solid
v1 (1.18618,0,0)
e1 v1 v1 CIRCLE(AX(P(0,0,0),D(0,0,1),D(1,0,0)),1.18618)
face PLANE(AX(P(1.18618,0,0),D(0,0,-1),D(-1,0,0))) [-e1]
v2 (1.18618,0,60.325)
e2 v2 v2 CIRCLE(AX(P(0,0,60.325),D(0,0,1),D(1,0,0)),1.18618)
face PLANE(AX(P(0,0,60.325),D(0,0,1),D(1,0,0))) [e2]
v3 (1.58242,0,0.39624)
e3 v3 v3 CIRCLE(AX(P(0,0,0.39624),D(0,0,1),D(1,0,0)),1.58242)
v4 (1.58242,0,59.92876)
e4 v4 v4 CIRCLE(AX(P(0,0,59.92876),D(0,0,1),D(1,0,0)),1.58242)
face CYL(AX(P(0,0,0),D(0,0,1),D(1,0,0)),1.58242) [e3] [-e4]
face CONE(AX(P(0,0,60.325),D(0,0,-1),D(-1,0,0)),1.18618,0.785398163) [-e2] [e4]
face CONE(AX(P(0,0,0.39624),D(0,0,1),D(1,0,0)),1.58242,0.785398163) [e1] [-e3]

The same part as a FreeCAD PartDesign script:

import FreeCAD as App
import Part
import Sketcher
Q = App.Units.Quantity

doc = App.newDocument("Part")
body = doc.addObject("PartDesign::Body", "Body")

sketch1 = doc.addObject("Sketcher::SketchObject", "Sketch")
body.addObject(sketch1)
sketch1.AttachmentSupport = (doc.XZ_Plane, [""])
sketch1.MapMode = "FlatFace"
sketch1.addGeometry(Part.LineSegment(App.Vector(1.2, 0, 0), App.Vector(0, 0, 0)), False)
sketch1.addGeometry(Part.LineSegment(App.Vector(0, 0, 0), App.Vector(0, 60.3, 0)), False)
sketch1.addGeometry(Part.LineSegment(App.Vector(0, 60.3, 0), App.Vector(1.2, 60.3, 0)), False)
sketch1.addGeometry(Part.LineSegment(App.Vector(1.2, 60.3, 0), App.Vector(1.6, 59.9, 0)), False)
sketch1.addGeometry(Part.LineSegment(App.Vector(1.6, 59.9, 0), App.Vector(1.6, 0.4, 0)), False)
sketch1.addGeometry(Part.LineSegment(App.Vector(1.6, 0.4, 0), App.Vector(1.2, 0, 0)), False)
sketch1.addConstraint(Sketcher.Constraint("Coincident", 0, 2, 1, 1))
sketch1.addConstraint(Sketcher.Constraint("Coincident", 1, 2, 2, 1))
sketch1.addConstraint(Sketcher.Constraint("Coincident", 2, 2, 3, 1))
sketch1.addConstraint(Sketcher.Constraint("Coincident", 3, 2, 4, 1))
sketch1.addConstraint(Sketcher.Constraint("Coincident", 4, 2, 5, 1))
sketch1.addConstraint(Sketcher.Constraint("Coincident", 5, 2, 0, 1))
sketch1.addConstraint(Sketcher.Constraint("Horizontal", 0))
sketch1.addConstraint(Sketcher.Constraint("Vertical", 1))
sketch1.addConstraint(Sketcher.Constraint("Horizontal", 2))
sketch1.addConstraint(Sketcher.Constraint("Vertical", 4))
sketch1.addConstraint(Sketcher.Constraint("Coincident", 0, 2, -1, 1))
sketch1.addConstraint(Sketcher.Constraint("Perpendicular", 3, 5))
sketch1.addConstraint(Sketcher.Constraint("Vertical", 2, 2, 5, 2))
sketch1.addConstraint(Sketcher.Constraint("Equal", 3, 5))
sketch1.addConstraint(Sketcher.Constraint("DistanceY", 1, 1, 1, 2, Q("2.375 in")))
sketch1.addConstraint(Sketcher.Constraint("DistanceX", 0, 2, 0, 1, Q("0.0467 in")))
sketch1.addConstraint(Sketcher.Constraint("DistanceY", 4, 2, 4, 1, Q("2.3438 in")))
revolution = doc.addObject("PartDesign::Revolution", "Revolution")
body.addObject(revolution)
revolution.Profile = sketch1
revolution.ReferenceAxis = (sketch1, ["V_Axis"])
revolution.Angle = 360

doc.recompute()
